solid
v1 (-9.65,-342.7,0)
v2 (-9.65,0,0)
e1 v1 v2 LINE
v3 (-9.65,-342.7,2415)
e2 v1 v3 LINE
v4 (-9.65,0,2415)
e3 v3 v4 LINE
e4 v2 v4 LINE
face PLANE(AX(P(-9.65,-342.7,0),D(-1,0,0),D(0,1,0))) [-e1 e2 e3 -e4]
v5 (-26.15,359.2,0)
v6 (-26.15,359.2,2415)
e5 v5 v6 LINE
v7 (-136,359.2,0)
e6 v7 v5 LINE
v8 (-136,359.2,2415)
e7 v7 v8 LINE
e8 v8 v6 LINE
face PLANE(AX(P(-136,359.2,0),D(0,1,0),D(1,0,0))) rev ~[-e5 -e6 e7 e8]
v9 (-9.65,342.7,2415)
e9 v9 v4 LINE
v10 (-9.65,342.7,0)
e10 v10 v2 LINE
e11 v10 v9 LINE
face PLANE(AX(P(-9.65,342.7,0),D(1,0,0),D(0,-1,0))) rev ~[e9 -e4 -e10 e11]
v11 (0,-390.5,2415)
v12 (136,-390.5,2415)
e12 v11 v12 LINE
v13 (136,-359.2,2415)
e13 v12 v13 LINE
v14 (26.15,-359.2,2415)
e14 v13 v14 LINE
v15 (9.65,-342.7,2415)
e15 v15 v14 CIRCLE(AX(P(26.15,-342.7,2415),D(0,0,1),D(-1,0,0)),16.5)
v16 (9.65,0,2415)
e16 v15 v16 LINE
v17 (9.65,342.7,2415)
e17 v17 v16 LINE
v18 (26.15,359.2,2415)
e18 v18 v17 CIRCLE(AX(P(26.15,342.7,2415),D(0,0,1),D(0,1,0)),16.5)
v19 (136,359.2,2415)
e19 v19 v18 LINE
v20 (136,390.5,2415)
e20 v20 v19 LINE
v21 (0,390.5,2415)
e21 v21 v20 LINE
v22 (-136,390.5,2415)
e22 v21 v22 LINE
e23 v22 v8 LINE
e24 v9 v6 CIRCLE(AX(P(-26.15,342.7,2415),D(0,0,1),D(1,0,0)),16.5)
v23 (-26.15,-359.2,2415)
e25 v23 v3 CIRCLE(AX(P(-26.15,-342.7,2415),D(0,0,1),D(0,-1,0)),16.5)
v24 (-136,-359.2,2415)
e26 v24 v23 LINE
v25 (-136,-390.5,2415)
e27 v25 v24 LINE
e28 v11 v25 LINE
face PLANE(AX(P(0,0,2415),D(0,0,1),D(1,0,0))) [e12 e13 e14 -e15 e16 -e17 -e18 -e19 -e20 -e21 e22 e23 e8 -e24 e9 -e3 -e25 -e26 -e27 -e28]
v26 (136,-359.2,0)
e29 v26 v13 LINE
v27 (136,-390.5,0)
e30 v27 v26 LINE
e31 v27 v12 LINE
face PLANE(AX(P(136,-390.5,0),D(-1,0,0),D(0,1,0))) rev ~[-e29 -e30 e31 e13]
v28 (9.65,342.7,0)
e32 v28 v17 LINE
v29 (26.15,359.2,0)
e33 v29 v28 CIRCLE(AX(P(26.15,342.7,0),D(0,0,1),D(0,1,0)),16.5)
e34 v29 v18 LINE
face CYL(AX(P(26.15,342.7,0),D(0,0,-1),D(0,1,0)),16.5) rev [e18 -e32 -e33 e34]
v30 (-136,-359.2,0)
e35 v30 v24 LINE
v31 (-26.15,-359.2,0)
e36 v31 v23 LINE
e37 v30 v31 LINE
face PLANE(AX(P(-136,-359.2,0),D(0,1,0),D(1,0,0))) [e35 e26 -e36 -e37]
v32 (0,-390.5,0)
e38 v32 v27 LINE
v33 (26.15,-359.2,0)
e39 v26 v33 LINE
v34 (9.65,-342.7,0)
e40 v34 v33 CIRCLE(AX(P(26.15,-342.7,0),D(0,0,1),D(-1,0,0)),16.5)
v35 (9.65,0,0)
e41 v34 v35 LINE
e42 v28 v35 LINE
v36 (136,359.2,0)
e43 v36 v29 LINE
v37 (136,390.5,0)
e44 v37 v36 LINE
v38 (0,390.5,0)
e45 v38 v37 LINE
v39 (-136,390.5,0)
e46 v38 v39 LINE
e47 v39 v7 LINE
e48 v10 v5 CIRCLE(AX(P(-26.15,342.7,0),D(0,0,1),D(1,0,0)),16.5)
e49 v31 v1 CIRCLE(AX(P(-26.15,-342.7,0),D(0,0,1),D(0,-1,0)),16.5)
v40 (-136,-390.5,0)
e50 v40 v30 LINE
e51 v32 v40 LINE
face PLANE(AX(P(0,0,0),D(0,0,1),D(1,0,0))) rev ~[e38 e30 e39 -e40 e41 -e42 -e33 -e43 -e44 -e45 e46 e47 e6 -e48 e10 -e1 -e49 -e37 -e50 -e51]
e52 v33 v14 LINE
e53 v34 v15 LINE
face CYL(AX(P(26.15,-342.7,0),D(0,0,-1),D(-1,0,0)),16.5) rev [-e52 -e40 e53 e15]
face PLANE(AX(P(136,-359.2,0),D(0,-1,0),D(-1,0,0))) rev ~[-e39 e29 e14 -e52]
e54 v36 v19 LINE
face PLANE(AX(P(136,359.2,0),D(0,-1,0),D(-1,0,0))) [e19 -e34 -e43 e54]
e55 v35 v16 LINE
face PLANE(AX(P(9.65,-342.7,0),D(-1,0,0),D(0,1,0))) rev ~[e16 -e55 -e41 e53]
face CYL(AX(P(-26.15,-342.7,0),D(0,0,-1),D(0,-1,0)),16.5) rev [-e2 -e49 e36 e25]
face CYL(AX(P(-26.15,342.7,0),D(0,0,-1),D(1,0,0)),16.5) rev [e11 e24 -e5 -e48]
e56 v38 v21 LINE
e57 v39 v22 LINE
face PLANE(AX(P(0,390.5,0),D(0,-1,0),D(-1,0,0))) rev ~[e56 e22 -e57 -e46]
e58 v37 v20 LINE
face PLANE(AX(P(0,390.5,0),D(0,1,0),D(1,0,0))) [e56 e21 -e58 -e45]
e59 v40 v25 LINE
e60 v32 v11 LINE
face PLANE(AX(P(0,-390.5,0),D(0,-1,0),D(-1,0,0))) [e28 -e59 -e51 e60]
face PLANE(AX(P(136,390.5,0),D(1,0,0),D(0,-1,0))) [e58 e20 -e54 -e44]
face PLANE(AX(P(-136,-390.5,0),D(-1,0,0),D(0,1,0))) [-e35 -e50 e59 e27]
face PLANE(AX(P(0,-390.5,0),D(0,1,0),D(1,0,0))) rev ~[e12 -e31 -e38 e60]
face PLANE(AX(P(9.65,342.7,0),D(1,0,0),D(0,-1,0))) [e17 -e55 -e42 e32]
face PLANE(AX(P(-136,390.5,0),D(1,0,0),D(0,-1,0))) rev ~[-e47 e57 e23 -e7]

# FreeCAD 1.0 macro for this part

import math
import FreeCAD as App
import Part
import Sketcher

doc = App.newDocument("Part")
body = doc.addObject("PartDesign::Body", "Body")

# Sketch on XY plane
sketch1 = body.newObject("Sketcher::SketchObject", "Sketch")
sketch1.AttachmentSupport = (doc.getObject("XY_Plane"), [""])
sketch1.MapMode = "FlatFace"
sketch1.addGeometry(Part.LineSegment(App.Vector(-136, -359, 0), App.Vector(-136, -390, 0)), False)
sketch1.addGeometry(Part.LineSegment(App.Vector(-136, -390, 0), App.Vector(136, -390, 0)), False)
sketch1.addGeometry(Part.LineSegment(App.Vector(136, -390, 0), App.Vector(136, -359, 0)), False)
sketch1.addGeometry(Part.LineSegment(App.Vector(136, -359, 0), App.Vector(26, -359, 0)), False)
sketch1.addGeometry(Part.ArcOfCircle(Part.Circle(App.Vector(26, -343, 0), App.Vector(0, 0, 1), 16), math.radians(180), math.radians(270)), False)
sketch1.addGeometry(Part.LineSegment(App.Vector(10, -343, 0), App.Vector(10, 343, 0)), False)
sketch1.addGeometry(Part.ArcOfCircle(Part.Circle(App.Vector(26, 343, 0), App.Vector(0, 0, 1), 16), math.radians(90), math.radians(180)), False)
sketch1.addGeometry(Part.LineSegment(App.Vector(26, 359, 0), App.Vector(136, 359, 0)), False)
sketch1.addGeometry(Part.LineSegment(App.Vector(136, 359, 0), App.Vector(136, 390, 0)), False)
sketch1.addGeometry(Part.LineSegment(App.Vector(136, 390, 0), App.Vector(-136, 390, 0)), False)
sketch1.addGeometry(Part.LineSegment(App.Vector(-136, 390, 0), App.Vector(-136, 359, 0)), False)
sketch1.addGeometry(Part.LineSegment(App.Vector(-136, 359, 0), App.Vector(-26, 359, 0)), False)
sketch1.addGeometry(Part.ArcOfCircle(Part.Circle(App.Vector(-26, 343, 0), App.Vector(0, 0, 1), 16), math.radians(0), math.radians(90)), False)
sketch1.addGeometry(Part.LineSegment(App.Vector(-10, 343, 0), App.Vector(-10, -343, 0)), False)
sketch1.addGeometry(Part.ArcOfCircle(Part.Circle(App.Vector(-26, -343, 0), App.Vector(0, 0, 1), 16), math.radians(-90), math.radians(0)), False)
sketch1.addGeometry(Part.LineSegment(App.Vector(-26, -359, 0), App.Vector(-136, -359, 0)), False)
sketch1.addConstraint(Sketcher.Constraint("Coincident", 0, 2, 1, 1))
sketch1.addConstraint(Sketcher.Constraint("Coincident", 1, 2, 2, 1))
sketch1.addConstraint(Sketcher.Constraint("Coincident", 2, 2, 3, 1))
sketch1.addConstraint(Sketcher.Constraint("Tangent", 3, 2, 4, 2))
sketch1.addConstraint(Sketcher.Constraint("Tangent", 4, 1, 5, 1))
sketch1.addConstraint(Sketcher.Constraint("Tangent", 5, 2, 6, 2))
sketch1.addConstraint(Sketcher.Constraint("Tangent", 6, 1, 7, 1))
sketch1.addConstraint(Sketcher.Constraint("Coincident", 7, 2, 8, 1))
sketch1.addConstraint(Sketcher.Constraint("Coincident", 8, 2, 9, 1))
sketch1.addConstraint(Sketcher.Constraint("Coincident", 9, 2, 10, 1))
sketch1.addConstraint(Sketcher.Constraint("Coincident", 10, 2, 11, 1))
sketch1.addConstraint(Sketcher.Constraint("Tangent", 11, 2, 12, 2))
sketch1.addConstraint(Sketcher.Constraint("Tangent", 12, 1, 13, 1))
sketch1.addConstraint(Sketcher.Constraint("Tangent", 13, 2, 14, 2))
sketch1.addConstraint(Sketcher.Constraint("Tangent", 14, 1, 15, 1))
sketch1.addConstraint(Sketcher.Constraint("Coincident", 15, 2, 0, 1))
sketch1.addConstraint(Sketcher.Constraint("Vertical", 0))
sketch1.addConstraint(Sketcher.Constraint("Horizontal", 1))
sketch1.addConstraint(Sketcher.Constraint("Vertical", 2))
sketch1.addConstraint(Sketcher.Constraint("Horizontal", 3))
sketch1.addConstraint(Sketcher.Constraint("Vertical", 5))
sketch1.addConstraint(Sketcher.Constraint("Horizontal", 7))
sketch1.addConstraint(Sketcher.Constraint("Vertical", 8))
sketch1.addConstraint(Sketcher.Constraint("Horizontal", 9))
sketch1.addConstraint(Sketcher.Constraint("Vertical", 10))
sketch1.addConstraint(Sketcher.Constraint("Horizontal", 11))
sketch1.addConstraint(Sketcher.Constraint("Vertical", 13))
sketch1.addConstraint(Sketcher.Constraint("Horizontal", 15))
sketch1.addConstraint(Sketcher.Constraint("Equal", 4, 6))
sketch1.addConstraint(Sketcher.Constraint("Equal", 6, 12))
sketch1.addConstraint(Sketcher.Constraint("Equal", 12, 14))
sketch1.addConstraint(Sketcher.Constraint("Symmetric", 4, 3, 12, 3, -1, 1))
sketch1.addConstraint(Sketcher.Constraint("Symmetric", 0, 2, 8, 2, -1, 1))
sketch1.addConstraint(Sketcher.Constraint("Symmetric", 7, 2, 10, 2, -2))
sketch1.addConstraint(Sketcher.Constraint("Symmetric", 2, 2, 15, 2, -2))
sketch1.addConstraint(Sketcher.Constraint("Radius", 4, 16.5))
sketch1.addConstraint(Sketcher.Constraint("DistanceY", 0, 2, 0, 1, 31.3))
sketch1.addConstraint(Sketcher.Constraint("DistanceX", 0, 2, -1, 1, 136.0))
sketch1.addConstraint(Sketcher.Constraint("DistanceY", 0, 2, -1, 1, 390.5))
sketch1.addConstraint(Sketcher.Constraint("DistanceX", -1, 1, 4, 1, 9.65))
pad1 = body.newObject("PartDesign::Pad", "Pad")
pad1.Profile = sketch1
pad1.Length = 2415

doc.recompute()
